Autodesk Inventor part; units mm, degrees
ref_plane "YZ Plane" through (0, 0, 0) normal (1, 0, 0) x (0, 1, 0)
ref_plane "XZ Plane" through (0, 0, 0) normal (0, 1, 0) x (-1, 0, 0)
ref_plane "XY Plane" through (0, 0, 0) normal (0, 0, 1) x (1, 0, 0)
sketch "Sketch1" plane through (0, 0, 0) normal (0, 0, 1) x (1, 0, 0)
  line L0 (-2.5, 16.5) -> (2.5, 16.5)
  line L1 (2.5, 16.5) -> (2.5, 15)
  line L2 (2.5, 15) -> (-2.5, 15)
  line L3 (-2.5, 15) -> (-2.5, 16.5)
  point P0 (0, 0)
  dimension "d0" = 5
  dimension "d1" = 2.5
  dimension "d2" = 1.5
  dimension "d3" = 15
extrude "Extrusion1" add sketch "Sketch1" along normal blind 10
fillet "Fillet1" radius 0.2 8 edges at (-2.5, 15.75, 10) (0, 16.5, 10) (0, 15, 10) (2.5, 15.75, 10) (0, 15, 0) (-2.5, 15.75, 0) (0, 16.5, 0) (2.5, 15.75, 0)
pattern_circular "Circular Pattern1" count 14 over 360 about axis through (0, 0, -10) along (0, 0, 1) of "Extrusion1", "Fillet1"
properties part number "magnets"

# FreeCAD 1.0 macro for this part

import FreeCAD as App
import Part
import Sketcher

V = App.Vector
Q = App.Units.Quantity


def edges_at(feature, points):
    """Names of the edges that pass closest to the given points."""
    edges = feature.Shape.Edges
    near = lambda p: min(range(len(edges)), key=lambda i: edges[i].distToShape(Part.Vertex(*p))[0])
    return sorted({f"Edge{near(p) + 1}" for p in points})


def add_polygon(sketch, points):
    """Adds a closed chain of lines whose ends are joined by coincident constraints."""
    first, n = sketch.GeometryCount, len(points)
    for a, b in zip(points, points[1:] + points[:1]):
        sketch.addGeometry(Part.LineSegment(App.Vector(*a, 0), App.Vector(*b, 0)), False)
    for i in range(n):
        sketch.addConstraint(Sketcher.Constraint("Coincident", first + i, 2, first + (i + 1) % n, 1))

doc = App.newDocument("Part")
body = doc.addObject("PartDesign::Body", "Body")
body.AllowCompound = True

sketch1 = doc.addObject("Sketcher::SketchObject", "Sketch")
body.addObject(sketch1)
sketch1.AttachmentSupport = (doc.XY_Plane, [""])
sketch1.MapMode = "FlatFace"
add_polygon(sketch1, [(2.5, 16.5), (-2.5, 16.5), (-2.5, 15), (2.5, 15)])
sketch1.addConstraint(Sketcher.Constraint("Horizontal", 0))
sketch1.addConstraint(Sketcher.Constraint("Vertical", 1))
sketch1.addConstraint(Sketcher.Constraint("Horizontal", 2))
sketch1.addConstraint(Sketcher.Constraint("Vertical", 3))
sketch1.addConstraint(Sketcher.Constraint("DistanceX", 0, 2, 0, 1, Q("5 mm")))
sketch1.addConstraint(Sketcher.Constraint("DistanceY", 1, 2, 1, 1, Q("1.5 mm")))
sketch1.addConstraint(Sketcher.Constraint("DistanceY", -1, 1, 1, 2, Q("15 mm")))
sketch1.addConstraint(Sketcher.Constraint("DistanceX", 0, 2, -1, 1, Q("2.5 mm")))
pad1 = doc.addObject("PartDesign::Pad", "Pad")
body.addObject(pad1)
pad1.Profile = sketch1
pad1.Length = 10
doc.recompute()

fillet = doc.addObject("PartDesign::Fillet", "Fillet")
body.addObject(fillet)
fillet.Base = (pad1, edges_at(pad1, [
    (-2.5, 15.75, 10),
    (0, 16.5, 10),
    (0, 15, 10),
    (2.5, 15.75, 10),
    (0, 15, 0),
    (-2.5, 15.75, 0),
    (0, 16.5, 0),
    (2.5, 15.75, 0),
]))
fillet.Radius = 0.2
doc.recompute()

polarpattern = doc.addObject("PartDesign::PolarPattern", "PolarPattern")
body.addObject(polarpattern)
polarpattern.Originals = [pad1, fillet]
polarpattern.Axis = (doc.Z_Axis, [""])
polarpattern.Angle = 360
polarpattern.Occurrences = 14
body.Tip = polarpattern

doc.recompute()
